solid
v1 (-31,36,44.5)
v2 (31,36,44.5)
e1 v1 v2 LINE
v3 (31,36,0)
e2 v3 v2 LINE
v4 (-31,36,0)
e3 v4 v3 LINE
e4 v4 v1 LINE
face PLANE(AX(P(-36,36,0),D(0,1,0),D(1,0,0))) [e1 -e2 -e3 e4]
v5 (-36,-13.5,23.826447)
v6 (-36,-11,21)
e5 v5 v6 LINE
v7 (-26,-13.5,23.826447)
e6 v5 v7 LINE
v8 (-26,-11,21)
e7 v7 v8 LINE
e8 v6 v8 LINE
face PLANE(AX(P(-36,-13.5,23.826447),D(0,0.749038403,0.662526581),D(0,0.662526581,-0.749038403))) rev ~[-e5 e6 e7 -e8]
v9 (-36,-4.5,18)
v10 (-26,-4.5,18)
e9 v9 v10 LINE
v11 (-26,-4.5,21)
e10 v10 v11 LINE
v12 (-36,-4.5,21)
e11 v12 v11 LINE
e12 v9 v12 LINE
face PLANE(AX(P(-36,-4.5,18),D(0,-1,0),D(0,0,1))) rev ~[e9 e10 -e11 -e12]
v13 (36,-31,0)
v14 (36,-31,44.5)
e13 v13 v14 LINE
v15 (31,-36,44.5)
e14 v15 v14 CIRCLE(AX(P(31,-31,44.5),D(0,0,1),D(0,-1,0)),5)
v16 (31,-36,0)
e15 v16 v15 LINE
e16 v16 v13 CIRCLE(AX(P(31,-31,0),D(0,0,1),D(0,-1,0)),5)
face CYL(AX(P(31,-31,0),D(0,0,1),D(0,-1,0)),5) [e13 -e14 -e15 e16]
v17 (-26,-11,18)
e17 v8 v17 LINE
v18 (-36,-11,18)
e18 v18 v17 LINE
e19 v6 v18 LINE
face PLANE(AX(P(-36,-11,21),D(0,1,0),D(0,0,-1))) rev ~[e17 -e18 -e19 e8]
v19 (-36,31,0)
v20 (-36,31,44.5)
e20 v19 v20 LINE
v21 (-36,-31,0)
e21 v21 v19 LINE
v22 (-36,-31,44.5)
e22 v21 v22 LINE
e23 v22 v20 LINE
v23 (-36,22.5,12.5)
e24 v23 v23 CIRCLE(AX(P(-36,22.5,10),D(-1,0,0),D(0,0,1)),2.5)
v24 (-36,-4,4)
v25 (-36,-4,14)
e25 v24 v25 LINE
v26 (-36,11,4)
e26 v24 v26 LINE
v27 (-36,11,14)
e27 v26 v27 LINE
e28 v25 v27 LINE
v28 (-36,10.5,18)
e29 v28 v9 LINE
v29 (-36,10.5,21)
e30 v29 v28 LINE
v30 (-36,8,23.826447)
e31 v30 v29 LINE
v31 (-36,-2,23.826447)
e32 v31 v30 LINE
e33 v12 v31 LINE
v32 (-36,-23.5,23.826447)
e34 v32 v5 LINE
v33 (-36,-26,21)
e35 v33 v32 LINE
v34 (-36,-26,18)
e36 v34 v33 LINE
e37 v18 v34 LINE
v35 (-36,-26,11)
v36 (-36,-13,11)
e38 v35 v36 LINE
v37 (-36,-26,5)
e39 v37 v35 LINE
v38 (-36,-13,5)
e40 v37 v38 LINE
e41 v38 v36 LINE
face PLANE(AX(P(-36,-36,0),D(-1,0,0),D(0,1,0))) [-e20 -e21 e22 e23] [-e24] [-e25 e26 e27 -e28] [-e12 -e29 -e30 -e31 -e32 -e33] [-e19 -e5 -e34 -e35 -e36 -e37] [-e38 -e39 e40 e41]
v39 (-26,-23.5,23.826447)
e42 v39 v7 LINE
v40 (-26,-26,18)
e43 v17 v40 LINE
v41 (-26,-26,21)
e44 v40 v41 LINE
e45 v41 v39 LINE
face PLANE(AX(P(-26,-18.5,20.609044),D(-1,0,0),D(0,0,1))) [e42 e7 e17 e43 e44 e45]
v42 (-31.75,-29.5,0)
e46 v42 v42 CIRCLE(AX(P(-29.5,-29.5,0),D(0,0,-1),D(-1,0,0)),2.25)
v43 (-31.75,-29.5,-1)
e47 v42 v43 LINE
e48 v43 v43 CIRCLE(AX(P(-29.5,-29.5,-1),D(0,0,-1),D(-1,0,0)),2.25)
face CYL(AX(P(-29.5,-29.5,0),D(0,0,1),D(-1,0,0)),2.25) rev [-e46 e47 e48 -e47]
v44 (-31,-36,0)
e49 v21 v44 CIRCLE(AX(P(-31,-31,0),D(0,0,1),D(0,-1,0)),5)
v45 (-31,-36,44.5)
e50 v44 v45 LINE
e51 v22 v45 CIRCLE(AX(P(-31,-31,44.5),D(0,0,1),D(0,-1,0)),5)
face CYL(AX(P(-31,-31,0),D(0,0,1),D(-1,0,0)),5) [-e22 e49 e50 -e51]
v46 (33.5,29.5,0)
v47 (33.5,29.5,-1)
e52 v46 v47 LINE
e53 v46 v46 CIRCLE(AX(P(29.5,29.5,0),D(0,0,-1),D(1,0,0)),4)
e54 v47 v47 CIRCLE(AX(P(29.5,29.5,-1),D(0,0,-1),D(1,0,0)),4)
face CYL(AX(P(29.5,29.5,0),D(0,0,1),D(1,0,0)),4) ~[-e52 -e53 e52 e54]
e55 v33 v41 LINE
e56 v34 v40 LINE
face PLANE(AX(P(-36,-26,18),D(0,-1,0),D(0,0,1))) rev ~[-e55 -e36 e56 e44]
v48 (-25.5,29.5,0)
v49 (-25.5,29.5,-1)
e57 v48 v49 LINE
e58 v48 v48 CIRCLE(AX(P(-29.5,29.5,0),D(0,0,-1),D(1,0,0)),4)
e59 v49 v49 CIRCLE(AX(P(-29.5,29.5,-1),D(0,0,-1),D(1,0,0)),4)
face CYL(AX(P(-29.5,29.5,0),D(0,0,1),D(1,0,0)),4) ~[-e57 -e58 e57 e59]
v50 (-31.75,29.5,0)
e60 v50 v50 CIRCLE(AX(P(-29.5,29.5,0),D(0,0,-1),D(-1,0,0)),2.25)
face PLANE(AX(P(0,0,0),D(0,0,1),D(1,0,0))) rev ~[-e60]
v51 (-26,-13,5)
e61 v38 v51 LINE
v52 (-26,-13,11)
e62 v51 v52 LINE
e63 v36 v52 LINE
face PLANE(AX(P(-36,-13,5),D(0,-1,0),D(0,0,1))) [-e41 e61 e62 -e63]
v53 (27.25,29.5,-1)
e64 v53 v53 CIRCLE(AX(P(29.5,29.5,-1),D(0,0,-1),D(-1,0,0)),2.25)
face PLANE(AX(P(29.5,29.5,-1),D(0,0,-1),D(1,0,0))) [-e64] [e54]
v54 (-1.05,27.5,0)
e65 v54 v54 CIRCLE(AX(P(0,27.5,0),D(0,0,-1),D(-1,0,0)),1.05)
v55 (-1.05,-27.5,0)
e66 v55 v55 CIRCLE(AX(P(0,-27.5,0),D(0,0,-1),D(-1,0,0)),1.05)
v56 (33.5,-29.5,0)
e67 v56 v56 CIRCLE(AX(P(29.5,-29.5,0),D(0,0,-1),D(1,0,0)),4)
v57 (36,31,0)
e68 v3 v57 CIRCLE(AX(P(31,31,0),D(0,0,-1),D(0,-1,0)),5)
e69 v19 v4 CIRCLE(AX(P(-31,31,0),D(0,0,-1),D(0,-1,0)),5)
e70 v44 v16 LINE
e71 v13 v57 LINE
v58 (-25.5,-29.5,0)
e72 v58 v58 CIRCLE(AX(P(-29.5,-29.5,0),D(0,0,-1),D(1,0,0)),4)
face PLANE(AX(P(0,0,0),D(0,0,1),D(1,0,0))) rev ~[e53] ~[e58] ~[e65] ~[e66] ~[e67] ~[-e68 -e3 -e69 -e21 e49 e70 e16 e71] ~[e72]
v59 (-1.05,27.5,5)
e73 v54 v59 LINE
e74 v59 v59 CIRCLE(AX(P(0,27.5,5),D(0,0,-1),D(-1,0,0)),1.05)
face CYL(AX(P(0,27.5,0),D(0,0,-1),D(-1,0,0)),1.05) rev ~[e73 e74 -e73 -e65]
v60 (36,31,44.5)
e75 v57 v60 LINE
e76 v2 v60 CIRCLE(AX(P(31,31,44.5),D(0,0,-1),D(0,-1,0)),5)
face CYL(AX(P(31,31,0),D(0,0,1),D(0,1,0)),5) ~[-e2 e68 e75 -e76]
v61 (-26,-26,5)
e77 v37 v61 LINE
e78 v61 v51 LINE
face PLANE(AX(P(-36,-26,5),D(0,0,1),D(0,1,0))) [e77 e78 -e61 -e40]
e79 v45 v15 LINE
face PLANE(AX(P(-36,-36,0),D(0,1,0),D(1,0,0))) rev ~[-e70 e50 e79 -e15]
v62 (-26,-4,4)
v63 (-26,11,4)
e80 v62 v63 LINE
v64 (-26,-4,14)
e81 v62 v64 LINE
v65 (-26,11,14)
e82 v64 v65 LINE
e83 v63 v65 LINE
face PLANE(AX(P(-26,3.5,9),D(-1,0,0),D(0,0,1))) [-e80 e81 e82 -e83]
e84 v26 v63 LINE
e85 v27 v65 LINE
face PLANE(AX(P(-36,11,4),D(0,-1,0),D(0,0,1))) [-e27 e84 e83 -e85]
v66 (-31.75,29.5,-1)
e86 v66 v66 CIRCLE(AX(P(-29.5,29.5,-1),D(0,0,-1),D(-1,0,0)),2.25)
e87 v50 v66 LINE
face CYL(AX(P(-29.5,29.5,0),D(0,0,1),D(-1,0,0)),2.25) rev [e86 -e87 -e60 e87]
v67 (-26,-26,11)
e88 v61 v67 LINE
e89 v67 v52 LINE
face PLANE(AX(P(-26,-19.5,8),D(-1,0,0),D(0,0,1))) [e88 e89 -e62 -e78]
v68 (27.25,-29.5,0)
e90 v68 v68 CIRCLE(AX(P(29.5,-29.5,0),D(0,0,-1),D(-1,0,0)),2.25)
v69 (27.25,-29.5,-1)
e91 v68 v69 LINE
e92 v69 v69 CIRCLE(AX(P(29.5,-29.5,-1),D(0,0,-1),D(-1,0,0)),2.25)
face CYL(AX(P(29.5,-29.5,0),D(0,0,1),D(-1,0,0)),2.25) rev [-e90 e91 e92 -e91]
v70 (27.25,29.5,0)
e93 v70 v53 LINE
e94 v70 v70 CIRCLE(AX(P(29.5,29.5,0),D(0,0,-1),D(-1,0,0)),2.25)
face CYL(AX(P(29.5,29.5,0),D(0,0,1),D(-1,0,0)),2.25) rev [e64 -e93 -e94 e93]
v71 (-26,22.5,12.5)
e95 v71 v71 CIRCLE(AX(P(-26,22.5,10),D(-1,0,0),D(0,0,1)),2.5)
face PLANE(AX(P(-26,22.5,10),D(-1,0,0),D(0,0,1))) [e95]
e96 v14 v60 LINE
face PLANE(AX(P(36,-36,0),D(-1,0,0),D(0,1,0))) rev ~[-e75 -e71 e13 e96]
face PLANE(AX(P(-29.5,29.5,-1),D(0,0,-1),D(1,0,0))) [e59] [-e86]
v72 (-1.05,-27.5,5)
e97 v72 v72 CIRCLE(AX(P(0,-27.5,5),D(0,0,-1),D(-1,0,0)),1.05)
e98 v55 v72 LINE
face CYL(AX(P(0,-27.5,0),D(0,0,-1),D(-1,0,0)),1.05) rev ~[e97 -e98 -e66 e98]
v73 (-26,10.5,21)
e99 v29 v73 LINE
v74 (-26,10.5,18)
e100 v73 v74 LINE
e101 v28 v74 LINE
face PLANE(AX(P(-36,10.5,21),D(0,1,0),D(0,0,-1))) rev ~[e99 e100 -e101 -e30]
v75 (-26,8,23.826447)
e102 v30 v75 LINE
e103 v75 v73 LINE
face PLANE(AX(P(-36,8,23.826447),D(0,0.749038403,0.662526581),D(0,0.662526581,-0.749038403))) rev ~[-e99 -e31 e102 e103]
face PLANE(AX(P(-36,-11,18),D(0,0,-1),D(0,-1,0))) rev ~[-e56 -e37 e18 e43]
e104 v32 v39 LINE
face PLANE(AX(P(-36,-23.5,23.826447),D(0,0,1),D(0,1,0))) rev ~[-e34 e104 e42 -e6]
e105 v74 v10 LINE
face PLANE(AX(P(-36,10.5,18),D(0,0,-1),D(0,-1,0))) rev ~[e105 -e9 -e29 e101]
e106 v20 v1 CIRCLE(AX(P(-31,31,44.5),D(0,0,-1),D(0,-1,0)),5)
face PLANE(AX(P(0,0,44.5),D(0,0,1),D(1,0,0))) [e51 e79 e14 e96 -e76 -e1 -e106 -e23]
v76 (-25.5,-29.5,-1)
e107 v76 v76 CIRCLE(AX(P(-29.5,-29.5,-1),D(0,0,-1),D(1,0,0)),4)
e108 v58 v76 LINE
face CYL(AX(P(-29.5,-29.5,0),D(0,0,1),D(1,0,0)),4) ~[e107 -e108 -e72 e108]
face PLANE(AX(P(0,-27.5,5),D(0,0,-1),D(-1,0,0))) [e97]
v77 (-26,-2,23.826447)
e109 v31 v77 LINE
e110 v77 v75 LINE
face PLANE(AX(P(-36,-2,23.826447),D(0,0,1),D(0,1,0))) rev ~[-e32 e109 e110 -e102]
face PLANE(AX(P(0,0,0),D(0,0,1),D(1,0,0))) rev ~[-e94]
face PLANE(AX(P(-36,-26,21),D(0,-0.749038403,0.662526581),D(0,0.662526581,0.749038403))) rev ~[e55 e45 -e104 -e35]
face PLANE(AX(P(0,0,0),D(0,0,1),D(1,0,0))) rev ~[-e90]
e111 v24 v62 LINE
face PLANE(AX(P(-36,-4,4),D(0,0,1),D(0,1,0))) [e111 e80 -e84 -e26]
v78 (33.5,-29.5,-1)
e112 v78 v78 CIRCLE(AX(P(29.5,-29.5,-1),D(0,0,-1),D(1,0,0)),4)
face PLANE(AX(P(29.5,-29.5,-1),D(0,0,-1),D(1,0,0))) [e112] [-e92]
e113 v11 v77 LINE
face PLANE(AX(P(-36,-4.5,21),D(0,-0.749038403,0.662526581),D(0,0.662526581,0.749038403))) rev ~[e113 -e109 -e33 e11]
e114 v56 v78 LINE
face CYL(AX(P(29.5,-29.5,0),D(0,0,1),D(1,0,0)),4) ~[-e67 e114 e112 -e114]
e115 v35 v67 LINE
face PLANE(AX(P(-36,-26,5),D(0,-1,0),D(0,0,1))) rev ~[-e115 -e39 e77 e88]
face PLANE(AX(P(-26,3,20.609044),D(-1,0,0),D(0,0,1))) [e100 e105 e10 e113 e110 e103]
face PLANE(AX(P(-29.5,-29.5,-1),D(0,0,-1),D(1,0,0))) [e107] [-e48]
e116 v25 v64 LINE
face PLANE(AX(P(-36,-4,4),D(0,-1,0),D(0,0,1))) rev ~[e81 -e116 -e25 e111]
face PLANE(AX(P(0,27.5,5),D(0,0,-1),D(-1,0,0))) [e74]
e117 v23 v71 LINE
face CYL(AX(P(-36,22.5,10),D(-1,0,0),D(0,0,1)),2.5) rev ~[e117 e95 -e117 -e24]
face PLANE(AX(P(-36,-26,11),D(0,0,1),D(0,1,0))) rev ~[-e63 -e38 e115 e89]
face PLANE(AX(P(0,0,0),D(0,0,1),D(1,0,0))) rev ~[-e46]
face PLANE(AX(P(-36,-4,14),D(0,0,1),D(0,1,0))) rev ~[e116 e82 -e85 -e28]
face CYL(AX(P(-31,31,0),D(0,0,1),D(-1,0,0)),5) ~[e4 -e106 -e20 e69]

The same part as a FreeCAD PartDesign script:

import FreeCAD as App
import Part
import Sketcher

V = App.Vector
Q = App.Units.Quantity


def edges_at(feature, points):
    """Names of the edges that pass closest to the given points."""
    edges = feature.Shape.Edges
    near = lambda p: min(range(len(edges)), key=lambda i: edges[i].distToShape(Part.Vertex(*p))[0])
    return sorted({f"Edge{near(p) + 1}" for p in points})


def add_polygon(sketch, points):
    """Adds a closed chain of lines whose ends are joined by coincident constraints."""
    first, n = sketch.GeometryCount, len(points)
    for a, b in zip(points, points[1:] + points[:1]):
        sketch.addGeometry(Part.LineSegment(App.Vector(*a, 0), App.Vector(*b, 0)), False)
    for i in range(n):
        sketch.addConstraint(Sketcher.Constraint("Coincident", first + i, 2, first + (i + 1) % n, 1))

doc = App.newDocument("Part")
body = doc.addObject("PartDesign::Body", "Body")

sketch1 = body.newObject("Sketcher::SketchObject", "Sketch")
sketch1.AttachmentSupport = (doc.getObject("XY_Plane"), [""])
sketch1.MapMode = "FlatFace"
add_polygon(sketch1, [(-36, 36), (-36, -36), (36, -36), (36, 36)])
sketch1.addConstraint([
    Sketcher.Constraint("Vertical", 0),
    Sketcher.Constraint("Horizontal", 1),
    Sketcher.Constraint("Vertical", 2),
    Sketcher.Constraint("Horizontal", 3),
    Sketcher.Constraint("Symmetric", 0, 2, 2, 2, -1, 1),
    Sketcher.Constraint("Equal", 3, 0),
    Sketcher.Constraint("DistanceX", 1, 1, 1, 2, Q("72 mm")),
])
pad1 = body.newObject("PartDesign::Pad", "Pad")
pad1.Profile = sketch1
pad1.Length = 44.5

sketch2 = body.newObject("Sketcher::SketchObject", "Sketch001")
sketch2.AttachmentSupport = (doc.getObject("YZ_Plane"), [""])
sketch2.MapMode = "FlatFace"
sketch2.AttachmentOffset = App.Placement(V(0, 0, -36), App.Rotation())
sketch2.addGeometry(Part.Circle(V(22.5, 10, 0), V(0, 0, 1), 2.5), False)
add_polygon(sketch2, [(11, 4), (-4, 4), (-4, 14), (11, 14)])
add_polygon(sketch2, [(-11, 18), (-26, 18), (-26, 21), (-23.5, 23.826447), (-13.5, 23.826447), (-11, 21)])
add_polygon(sketch2, [(-13, 5), (-26, 5), (-26, 11), (-13, 11)])
add_polygon(sketch2, [(10.5, 18), (-4.5, 18), (-4.5, 21), (-2, 23.826447), (8, 23.826447), (10.5, 21)])
sketch2.addConstraint([
    Sketcher.Constraint("Horizontal", 1),
    Sketcher.Constraint("Vertical", 2),
    Sketcher.Constraint("Horizontal", 3),
    Sketcher.Constraint("Vertical", 4),
    Sketcher.Constraint("Horizontal", 5),
    Sketcher.Constraint("Vertical", 6),
    Sketcher.Constraint("Horizontal", 8),
    Sketcher.Constraint("Vertical", 10),
    Sketcher.Constraint("Horizontal", 11),
    Sketcher.Constraint("Vertical", 12),
    Sketcher.Constraint("Horizontal", 13),
    Sketcher.Constraint("Vertical", 14),
    Sketcher.Constraint("Horizontal", 15),
    Sketcher.Constraint("Vertical", 16),
    Sketcher.Constraint("Horizontal", 18),
    Sketcher.Constraint("Vertical", 20),
    Sketcher.Constraint("Parallel", 7, 17),
    Sketcher.Constraint("Parallel", 9, 19),
    Sketcher.Constraint("Horizontal", 6, 2, 9, 2),
    Sketcher.Constraint("Horizontal", 10, 2, 15, 2),
    Sketcher.Constraint("Horizontal", 9, 2, 16, 2),
    Sketcher.Constraint("Horizontal", 8, 2, 17, 2),
    Sketcher.Constraint("Horizontal", 16, 2, 19, 2),
    Sketcher.Constraint("Vertical", 6, 2, 11, 2),
    Sketcher.Constraint("Equal", 3, 5),
    Sketcher.Constraint("Equal", 5, 15),
    Sketcher.Constraint("Equal", 18, 2),
    Sketcher.Constraint("Equal", 7, 9),
    Sketcher.Constraint("Diameter", 0, Q("5 mm")),
    Sketcher.Constraint("DistanceX", 1, 2, 1, 1, Q("15 mm")),
    Sketcher.Constraint("DistanceX", 8, 1, 8, 2, Q("10 mm")),
    Sketcher.Constraint("DistanceX", 11, 2, 11, 1, Q("13 mm")),
    Sketcher.Constraint("DistanceY", 6, 1, 6, 2, Q("3 mm")),
    Sketcher.Constraint("DistanceY", 12, 1, 12, 2, Q("6 mm")),
    Sketcher.Constraint("DistanceY", -1, 1, 0, 3, Q("10 mm")),
    Sketcher.Constraint("DistanceX", 1, 2, -1, 1, Q("4 mm")),
    Sketcher.Constraint("DistanceY", -1, 1, 1, 2, Q("4 mm")),
    Sketcher.Constraint("DistanceX", 5, 2, -1, 1, Q("26 mm")),
    Sketcher.Constraint("DistanceY", -1, 1, 5, 2, Q("18 mm")),
    Sketcher.Constraint("DistanceY", -1, 1, 11, 2, Q("5 mm")),
    Sketcher.Constraint("DistanceX", 17, 2, -1, 1, Q("2 mm")),
    Sketcher.Constraint("DistanceX", -1, 1, 0, 3, Q("22.5 mm")),
    Sketcher.Constraint("Distance", 7, Q("3.773434 mm")),
])
pocket1 = body.newObject("PartDesign::Pocket", "Pocket")
pocket1.Profile = sketch2
pocket1.Length = 10
pocket1.Reversed = True
doc.recompute()

fillet = body.newObject("PartDesign::Fillet", "Fillet")
fillet.Base = (pocket1, edges_at(pocket1, [
    (36, -36, 22.25),
    (-36, -36, 22.25),
    (-36, 36, 22.25),
    (36, 36, 22.25),
]))
fillet.Radius = 5

sketch3 = body.newObject("Sketcher::SketchObject", "Sketch002")
sketch3.AttachmentSupport = (doc.getObject("XY_Plane"), [""])
sketch3.MapMode = "FlatFace"
sketch3.addGeometry([
    Part.Circle(V(0, 27.5, 0), V(0, 0, 1), 1.05),
    Part.Circle(V(0, -27.5, 0), V(0, 0, 1), 1.05),
], False)
sketch3.addConstraint([
    Sketcher.Constraint("Equal", 0, 1),
    Sketcher.Constraint("Symmetric", 0, 3, 1, 3, -1, 1),
    Sketcher.Constraint("PointOnObject", 0, 3, -2),
    Sketcher.Constraint("Diameter", 0, Q("2.1 mm")),
    Sketcher.Constraint("DistanceY", 1, 3, 0, 3, Q("55 mm")),
])
pocket2 = body.newObject("PartDesign::Pocket", "Pocket001")
pocket2.Profile = sketch3
pocket2.Length = 5
pocket2.Reversed = True

sketch4 = body.newObject("Sketcher::SketchObject", "Sketch003")
sketch4.AttachmentSupport = (doc.getObject("XY_Plane"), [""])
sketch4.MapMode = "FlatFace"
sketch4.addGeometry([
    Part.Circle(V(-29.5, -29.5, 0), V(0, 0, 1), 4),
    Part.Circle(V(-29.5, -29.5, 0), V(0, 0, 1), 2.25),
    Part.Circle(V(29.5, -29.5, 0), V(0, 0, 1), 4),
    Part.Circle(V(29.5, -29.5, 0), V(0, 0, 1), 2.25),
    Part.Circle(V(29.5, 29.5, 0), V(0, 0, 1), 4),
    Part.Circle(V(29.5, 29.5, 0), V(0, 0, 1), 2.25),
    Part.Circle(V(-29.5, 29.5, 0), V(0, 0, 1), 4),
    Part.Circle(V(-29.5, 29.5, 0), V(0, 0, 1), 2.25),
], False)
sketch4.addConstraint([
    Sketcher.Constraint("Coincident", 1, 3, 0, 3),
    Sketcher.Constraint("Coincident", 3, 3, 2, 3),
    Sketcher.Constraint("Coincident", 5, 3, 4, 3),
    Sketcher.Constraint("Coincident", 7, 3, 6, 3),
    Sketcher.Constraint("Equal", 0, 2),
    Sketcher.Constraint("Equal", 1, 3),
    Sketcher.Constraint("Equal", 2, 4),
    Sketcher.Constraint("Equal", 3, 5),
    Sketcher.Constraint("Equal", 4, 6),
    Sketcher.Constraint("Equal", 5, 7),
    Sketcher.Constraint("Symmetric", 0, 3, 4, 3, -1, 1),
    Sketcher.Constraint("Symmetric", 2, 3, 6, 3, -1, 1),
    Sketcher.Constraint("Symmetric", 0, 3, 2, 3, -2),
    Sketcher.Constraint("Diameter", 0, Q("8 mm")),
    Sketcher.Constraint("Diameter", 1, Q("4.5 mm")),
    Sketcher.Constraint("DistanceX", 0, 3, 2, 3, Q("59 mm")),
    Sketcher.Constraint("DistanceY", 2, 3, 4, 3, Q("59 mm")),
])
pad2 = body.newObject("PartDesign::Pad", "Pad001")
pad2.Profile = sketch4
pad2.Length = 1
pad2.Reversed = True

doc.recompute()
